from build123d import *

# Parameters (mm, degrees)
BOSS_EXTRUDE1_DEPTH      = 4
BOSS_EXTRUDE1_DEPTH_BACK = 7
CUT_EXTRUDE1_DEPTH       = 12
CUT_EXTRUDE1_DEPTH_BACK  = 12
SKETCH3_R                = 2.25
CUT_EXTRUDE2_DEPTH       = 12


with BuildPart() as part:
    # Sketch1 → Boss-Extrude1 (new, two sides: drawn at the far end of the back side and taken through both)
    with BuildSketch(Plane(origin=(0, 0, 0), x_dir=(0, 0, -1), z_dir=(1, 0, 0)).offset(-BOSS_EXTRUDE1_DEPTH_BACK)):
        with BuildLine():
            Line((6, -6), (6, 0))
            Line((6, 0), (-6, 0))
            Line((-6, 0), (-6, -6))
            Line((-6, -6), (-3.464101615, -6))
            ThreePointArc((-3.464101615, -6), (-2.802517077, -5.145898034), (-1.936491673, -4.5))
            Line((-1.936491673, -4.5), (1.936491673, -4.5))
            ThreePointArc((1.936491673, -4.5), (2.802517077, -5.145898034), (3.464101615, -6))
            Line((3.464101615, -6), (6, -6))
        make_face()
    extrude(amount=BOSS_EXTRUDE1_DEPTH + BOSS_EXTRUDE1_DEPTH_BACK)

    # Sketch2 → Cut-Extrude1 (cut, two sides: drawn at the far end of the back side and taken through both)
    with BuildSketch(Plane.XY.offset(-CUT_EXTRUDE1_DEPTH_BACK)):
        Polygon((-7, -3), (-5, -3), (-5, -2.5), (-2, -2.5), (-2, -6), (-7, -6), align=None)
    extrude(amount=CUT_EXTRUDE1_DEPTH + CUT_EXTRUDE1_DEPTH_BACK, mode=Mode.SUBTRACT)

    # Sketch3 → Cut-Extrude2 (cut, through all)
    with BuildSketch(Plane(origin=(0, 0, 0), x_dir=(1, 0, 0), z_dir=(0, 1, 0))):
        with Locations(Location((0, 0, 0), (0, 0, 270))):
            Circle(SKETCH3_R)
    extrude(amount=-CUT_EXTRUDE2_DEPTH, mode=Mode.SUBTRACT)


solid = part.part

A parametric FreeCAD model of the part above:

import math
import FreeCAD as App
import Part
import Sketcher
from FreeCAD import Vector

doc = App.newDocument("Part")
body = doc.addObject("PartDesign::Body", "Body")

sketch1 = doc.addObject("Sketcher::SketchObject", "Sketch")
body.addObject(sketch1)
sketch1.AttachmentSupport = (doc.YZ_Plane, [""])
sketch1.MapMode = "FlatFace"
sketch1.addGeometry(Part.LineSegment(Vector(-6, -6, 0), Vector(0, -6, 0)), False)
sketch1.addGeometry(Part.LineSegment(Vector(0, -6, 0), Vector(0, 6, 0)), False)
sketch1.addGeometry(Part.LineSegment(Vector(0, 6, 0), Vector(-6, 6, 0)), False)
sketch1.addGeometry(Part.LineSegment(Vector(-6, 6, 0), Vector(-6, 3.5, 0)), False)
sketch1.addGeometry(Part.ArcOfCircle(Part.Circle(Vector(-8, 0, 0), Vector(0, 0, 1), 4), math.radians(29), math.radians(60)), False)
sketch1.addGeometry(Part.LineSegment(Vector(-4.5, 1.9, 0), Vector(-4.5, -1.9, 0)), False)
sketch1.addGeometry(Part.ArcOfCircle(Part.Circle(Vector(-8, 0, 0), Vector(0, 0, 1), 4), math.radians(-60), math.radians(-29)), False)
sketch1.addGeometry(Part.LineSegment(Vector(-6, -3.5, 0), Vector(-6, -6, 0)), False)
sketch1.addConstraint(Sketcher.Constraint("Coincident", 0, 2, 1, 1))
sketch1.addConstraint(Sketcher.Constraint("Coincident", 1, 2, 2, 1))
sketch1.addConstraint(Sketcher.Constraint("Coincident", 2, 2, 3, 1))
sketch1.addConstraint(Sketcher.Constraint("Coincident", 3, 2, 4, 2))
sketch1.addConstraint(Sketcher.Constraint("Coincident", 4, 1, 5, 1))
sketch1.addConstraint(Sketcher.Constraint("Coincident", 5, 2, 6, 2))
sketch1.addConstraint(Sketcher.Constraint("Coincident", 6, 1, 7, 1))
sketch1.addConstraint(Sketcher.Constraint("Coincident", 7, 2, 0, 1))
sketch1.addConstraint(Sketcher.Constraint("Horizontal", 0))
sketch1.addConstraint(Sketcher.Constraint("Vertical", 1))
sketch1.addConstraint(Sketcher.Constraint("Horizontal", 2))
sketch1.addConstraint(Sketcher.Constraint("Vertical", 3))
sketch1.addConstraint(Sketcher.Constraint("Vertical", 5))
sketch1.addConstraint(Sketcher.Constraint("Vertical", 7))
sketch1.addConstraint(Sketcher.Constraint("Coincident", 6, 3, 4, 3))
sketch1.addConstraint(Sketcher.Constraint("Equal", 4, 6))
sketch1.addConstraint(Sketcher.Constraint("Symmetric", 0, 2, 1, 2, -1, 1))
sketch1.addConstraint(Sketcher.Constraint("Symmetric", 3, 2, 6, 1, -1))
sketch1.addConstraint(Sketcher.Constraint("Radius", 4, 4.0))
sketch1.addConstraint(Sketcher.Constraint("DistanceX", 0, 1, 0, 2, 6.0))
sketch1.addConstraint(Sketcher.Constraint("DistanceY", 1, 1, 1, 2, 12.0))
sketch1.addConstraint(Sketcher.Constraint("DistanceX", 4, 3, -1, 1, 8.0))
sketch1.addConstraint(Sketcher.Constraint("DistanceX", 4, 1, -1, 1, 4.5))
pad1 = doc.addObject("PartDesign::Pad", "Pad")
body.addObject(pad1)
pad1.Profile = sketch1
pad1.Type = "TwoLengths"
pad1.Length = 4
pad1.Length2 = 7

sketch2 = doc.addObject("Sketcher::SketchObject", "Sketch001")
body.addObject(sketch2)
sketch2.AttachmentSupport = (doc.XY_Plane, [""])
sketch2.MapMode = "FlatFace"
sketch2.addGeometry(Part.LineSegment(Vector(-5, -3, 0), Vector(-7, -3, 0)), False)
sketch2.addGeometry(Part.LineSegment(Vector(-7, -3, 0), Vector(-7, -6, 0)), False)
sketch2.addGeometry(Part.LineSegment(Vector(-7, -6, 0), Vector(-2, -6, 0)), False)
sketch2.addGeometry(Part.LineSegment(Vector(-2, -6, 0), Vector(-2, -2.5, 0)), False)
sketch2.addGeometry(Part.LineSegment(Vector(-2, -2.5, 0), Vector(-5, -2.5, 0)), False)
sketch2.addGeometry(Part.LineSegment(Vector(-5, -2.5, 0), Vector(-5, -3, 0)), False)
sketch2.addConstraint(Sketcher.Constraint("Coincident", 0, 2, 1, 1))
sketch2.addConstraint(Sketcher.Constraint("Coincident", 1, 2, 2, 1))
sketch2.addConstraint(Sketcher.Constraint("Coincident", 2, 2, 3, 1))
sketch2.addConstraint(Sketcher.Constraint("Coincident", 3, 2, 4, 1))
sketch2.addConstraint(Sketcher.Constraint("Coincident", 4, 2, 5, 1))
sketch2.addConstraint(Sketcher.Constraint("Coincident", 5, 2, 0, 1))
sketch2.addConstraint(Sketcher.Constraint("Horizontal", 0))
sketch2.addConstraint(Sketcher.Constraint("Vertical", 1))
sketch2.addConstraint(Sketcher.Constraint("Horizontal", 2))
sketch2.addConstraint(Sketcher.Constraint("Vertical", 3))
sketch2.addConstraint(Sketcher.Constraint("Horizontal", 4))
sketch2.addConstraint(Sketcher.Constraint("Vertical", 5))
sketch2.addConstraint(Sketcher.Constraint("Equal", 4, 1))
sketch2.addConstraint(Sketcher.Constraint("DistanceX", 0, 2, 0, 1, 2.0))
sketch2.addConstraint(Sketcher.Constraint("DistanceX", 2, 1, 2, 2, 5.0))
sketch2.addConstraint(Sketcher.Constraint("DistanceY", 3, 1, 3, 2, 3.5))
sketch2.addConstraint(Sketcher.Constraint("DistanceX", 0, 2, -1, 1, 7.0))
sketch2.addConstraint(Sketcher.Constraint("DistanceY", 0, 2, -1, 1, 3.0))
pocket1 = doc.addObject("PartDesign::Pocket", "Pocket")
body.addObject(pocket1)
pocket1.Profile = sketch2
pocket1.Type = "ThroughAll"
pocket1.Midplane = True

sketch3 = doc.addObject("Sketcher::SketchObject", "Sketch002")
body.addObject(sketch3)
sketch3.AttachmentSupport = (doc.XZ_Plane, [""])
sketch3.MapMode = "FlatFace"
sketch3.addGeometry(Part.Circle(Vector(0, 0, 0), Vector(0, 0, 1), 2.2), False)
sketch3.addConstraint(Sketcher.Constraint("Coincident", 0, 3, -1, 1))
sketch3.addConstraint(Sketcher.Constraint("Diameter", 0, 4.5))
pocket2 = doc.addObject("PartDesign::Pocket", "Pocket001")
body.addObject(pocket2)
pocket2.Profile = sketch3
pocket2.Type = "ThroughAll"
pocket2.Reversed = True

doc.recompute()
